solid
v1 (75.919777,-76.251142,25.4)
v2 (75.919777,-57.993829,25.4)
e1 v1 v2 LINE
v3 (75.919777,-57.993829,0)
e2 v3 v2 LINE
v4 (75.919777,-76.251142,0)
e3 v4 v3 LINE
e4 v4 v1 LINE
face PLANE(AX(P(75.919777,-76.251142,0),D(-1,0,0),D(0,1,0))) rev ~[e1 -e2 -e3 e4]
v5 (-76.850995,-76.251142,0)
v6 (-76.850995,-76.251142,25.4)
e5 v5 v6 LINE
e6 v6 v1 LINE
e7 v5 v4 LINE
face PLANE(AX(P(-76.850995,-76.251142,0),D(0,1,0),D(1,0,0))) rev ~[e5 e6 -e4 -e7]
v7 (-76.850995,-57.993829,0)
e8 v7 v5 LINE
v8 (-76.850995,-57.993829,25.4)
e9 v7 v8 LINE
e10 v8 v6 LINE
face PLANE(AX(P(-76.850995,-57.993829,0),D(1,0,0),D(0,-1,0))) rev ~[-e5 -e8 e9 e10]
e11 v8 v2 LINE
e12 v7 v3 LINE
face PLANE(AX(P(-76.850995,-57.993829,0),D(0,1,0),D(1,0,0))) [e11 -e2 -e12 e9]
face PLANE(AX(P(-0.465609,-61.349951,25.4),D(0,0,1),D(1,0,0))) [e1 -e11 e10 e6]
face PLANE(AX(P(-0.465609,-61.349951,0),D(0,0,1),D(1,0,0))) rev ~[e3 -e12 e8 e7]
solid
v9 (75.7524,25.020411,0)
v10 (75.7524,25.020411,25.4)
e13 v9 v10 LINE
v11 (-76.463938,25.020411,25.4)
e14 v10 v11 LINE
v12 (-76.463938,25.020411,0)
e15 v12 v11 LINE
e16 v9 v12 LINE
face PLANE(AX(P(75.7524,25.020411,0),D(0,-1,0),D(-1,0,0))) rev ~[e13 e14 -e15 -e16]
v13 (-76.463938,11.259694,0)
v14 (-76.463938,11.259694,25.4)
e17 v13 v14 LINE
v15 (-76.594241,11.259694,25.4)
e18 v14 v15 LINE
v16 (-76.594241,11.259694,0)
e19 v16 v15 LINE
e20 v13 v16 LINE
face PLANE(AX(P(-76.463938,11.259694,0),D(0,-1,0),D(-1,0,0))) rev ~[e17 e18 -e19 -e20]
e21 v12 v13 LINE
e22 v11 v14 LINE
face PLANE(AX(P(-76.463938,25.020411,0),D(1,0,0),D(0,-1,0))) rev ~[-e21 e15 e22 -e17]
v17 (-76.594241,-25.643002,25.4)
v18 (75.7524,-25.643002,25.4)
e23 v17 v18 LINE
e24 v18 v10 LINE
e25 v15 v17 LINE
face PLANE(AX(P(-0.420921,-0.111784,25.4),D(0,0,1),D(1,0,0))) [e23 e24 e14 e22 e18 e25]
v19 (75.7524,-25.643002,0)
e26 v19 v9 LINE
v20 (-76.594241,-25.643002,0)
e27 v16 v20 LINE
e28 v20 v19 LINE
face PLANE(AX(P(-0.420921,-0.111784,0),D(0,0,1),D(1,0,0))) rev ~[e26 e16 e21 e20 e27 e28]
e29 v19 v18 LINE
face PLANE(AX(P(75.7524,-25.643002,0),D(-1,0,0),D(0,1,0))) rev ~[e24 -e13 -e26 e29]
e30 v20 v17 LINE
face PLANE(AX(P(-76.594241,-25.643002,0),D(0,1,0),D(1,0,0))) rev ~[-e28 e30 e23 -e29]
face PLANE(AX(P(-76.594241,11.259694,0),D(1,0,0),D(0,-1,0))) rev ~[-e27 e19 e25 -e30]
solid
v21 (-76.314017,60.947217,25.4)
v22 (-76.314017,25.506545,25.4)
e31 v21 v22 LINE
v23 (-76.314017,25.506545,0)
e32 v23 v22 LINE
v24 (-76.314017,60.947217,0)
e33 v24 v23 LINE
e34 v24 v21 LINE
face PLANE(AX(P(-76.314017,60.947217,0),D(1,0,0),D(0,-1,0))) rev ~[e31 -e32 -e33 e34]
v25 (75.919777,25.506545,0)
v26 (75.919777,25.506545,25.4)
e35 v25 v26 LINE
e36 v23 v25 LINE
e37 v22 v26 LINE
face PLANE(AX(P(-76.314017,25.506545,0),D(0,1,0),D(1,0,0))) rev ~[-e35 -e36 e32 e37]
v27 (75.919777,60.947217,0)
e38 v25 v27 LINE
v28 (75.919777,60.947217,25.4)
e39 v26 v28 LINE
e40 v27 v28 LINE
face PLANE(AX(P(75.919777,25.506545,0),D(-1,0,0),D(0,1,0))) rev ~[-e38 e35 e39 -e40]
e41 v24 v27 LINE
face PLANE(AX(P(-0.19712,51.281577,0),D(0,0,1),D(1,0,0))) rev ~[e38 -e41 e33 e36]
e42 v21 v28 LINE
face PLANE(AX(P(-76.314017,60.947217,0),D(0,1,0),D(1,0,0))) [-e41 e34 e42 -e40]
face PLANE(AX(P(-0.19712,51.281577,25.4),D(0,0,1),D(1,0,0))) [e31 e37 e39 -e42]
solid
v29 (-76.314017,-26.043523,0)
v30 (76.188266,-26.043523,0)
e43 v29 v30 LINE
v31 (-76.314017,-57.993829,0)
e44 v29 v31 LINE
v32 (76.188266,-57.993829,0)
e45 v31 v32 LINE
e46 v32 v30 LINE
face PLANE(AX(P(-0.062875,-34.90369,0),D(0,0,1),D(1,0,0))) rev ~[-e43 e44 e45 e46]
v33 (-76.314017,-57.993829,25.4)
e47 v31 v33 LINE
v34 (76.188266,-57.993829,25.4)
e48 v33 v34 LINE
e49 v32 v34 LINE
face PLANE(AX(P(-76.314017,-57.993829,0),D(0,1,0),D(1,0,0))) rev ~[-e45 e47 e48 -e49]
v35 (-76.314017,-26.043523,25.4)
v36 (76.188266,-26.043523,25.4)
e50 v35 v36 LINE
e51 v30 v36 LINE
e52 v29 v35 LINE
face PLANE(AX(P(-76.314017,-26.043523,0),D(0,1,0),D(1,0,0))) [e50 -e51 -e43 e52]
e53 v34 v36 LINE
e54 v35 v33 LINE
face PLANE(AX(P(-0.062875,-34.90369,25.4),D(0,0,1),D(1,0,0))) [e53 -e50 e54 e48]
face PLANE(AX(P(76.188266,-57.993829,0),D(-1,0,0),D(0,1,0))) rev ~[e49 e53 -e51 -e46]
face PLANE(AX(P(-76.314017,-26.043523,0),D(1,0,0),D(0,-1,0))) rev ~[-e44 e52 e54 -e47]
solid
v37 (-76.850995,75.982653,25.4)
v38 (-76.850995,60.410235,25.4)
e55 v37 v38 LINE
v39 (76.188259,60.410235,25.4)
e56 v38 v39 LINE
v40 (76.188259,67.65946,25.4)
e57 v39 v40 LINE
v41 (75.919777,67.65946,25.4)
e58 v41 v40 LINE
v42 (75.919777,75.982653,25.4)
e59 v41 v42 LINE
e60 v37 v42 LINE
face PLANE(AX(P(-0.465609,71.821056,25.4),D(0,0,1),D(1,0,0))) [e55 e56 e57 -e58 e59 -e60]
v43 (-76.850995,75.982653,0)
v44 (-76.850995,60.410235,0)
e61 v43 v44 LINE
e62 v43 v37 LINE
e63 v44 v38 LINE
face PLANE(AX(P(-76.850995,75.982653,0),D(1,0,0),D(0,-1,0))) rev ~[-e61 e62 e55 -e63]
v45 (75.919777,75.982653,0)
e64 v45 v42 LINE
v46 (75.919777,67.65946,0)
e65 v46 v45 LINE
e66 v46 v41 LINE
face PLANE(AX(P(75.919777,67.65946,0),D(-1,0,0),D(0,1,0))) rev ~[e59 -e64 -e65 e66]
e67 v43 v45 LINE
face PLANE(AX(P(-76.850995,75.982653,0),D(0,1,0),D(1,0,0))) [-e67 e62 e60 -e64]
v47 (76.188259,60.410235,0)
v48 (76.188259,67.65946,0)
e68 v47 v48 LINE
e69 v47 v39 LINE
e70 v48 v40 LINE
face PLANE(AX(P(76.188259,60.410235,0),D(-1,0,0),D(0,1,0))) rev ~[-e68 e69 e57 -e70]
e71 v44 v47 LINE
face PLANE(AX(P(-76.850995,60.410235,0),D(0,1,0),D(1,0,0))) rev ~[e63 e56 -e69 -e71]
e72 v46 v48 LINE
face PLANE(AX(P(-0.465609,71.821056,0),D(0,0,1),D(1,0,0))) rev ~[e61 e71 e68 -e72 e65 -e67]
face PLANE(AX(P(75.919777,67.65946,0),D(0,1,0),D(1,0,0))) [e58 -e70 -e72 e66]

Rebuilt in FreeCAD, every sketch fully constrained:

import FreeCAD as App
import Part
import Sketcher

V = App.Vector
Q = App.Units.Quantity

doc = App.newDocument("Part")
body = doc.addObject("PartDesign::Body", "Body")

# Sketch on XY plane
sketch1 = body.newObject("Sketcher::SketchObject", "Sketch")
sketch1.AttachmentSupport = (doc.getObject("XY_Plane"), [""])
sketch1.MapMode = "FlatFace"
sketch1.addGeometry([
    Part.LineSegment(V(-76.594241, 11.259694, 0), V(-76.594241, -25.643002, 0)),  # 0
    Part.LineSegment(V(-76.594241, -25.643002, 0), V(75.7524, -25.643002, 0)),  # 1
    Part.LineSegment(V(75.7524, -25.643002, 0), V(75.7524, 25.020411, 0)),  # 2
    Part.LineSegment(V(75.7524, 25.020411, 0), V(-76.463938, 25.020411, 0)),  # 3
    Part.LineSegment(V(-76.463938, 25.020411, 0), V(-76.463938, 11.259694, 0)),  # 4
    Part.LineSegment(V(-76.463938, 11.259694, 0), V(-76.594241, 11.259694, 0)),  # 5
], False)
sketch1.addConstraint([
    Sketcher.Constraint("Coincident", 0, 2, 1, 1),
    Sketcher.Constraint("Coincident", 1, 2, 2, 1),
    Sketcher.Constraint("Coincident", 2, 2, 3, 1),
    Sketcher.Constraint("Coincident", 3, 2, 4, 1),
    Sketcher.Constraint("Coincident", 4, 2, 5, 1),
    Sketcher.Constraint("Coincident", 5, 2, 0, 1),
    Sketcher.Constraint("Vertical", 0),
    Sketcher.Constraint("Horizontal", 1),
    Sketcher.Constraint("Vertical", 2),
    Sketcher.Constraint("Horizontal", 3),
    Sketcher.Constraint("Vertical", 4),
    Sketcher.Constraint("Horizontal", 5),
    Sketcher.Constraint("DistanceX", 1, 1, 1, 2, 152.346641),
    Sketcher.Constraint("DistanceX", -1, 1, 1, 2, 75.7524),
    Sketcher.Constraint("DistanceX", 3, 2, 3, 1, 152.216338),
    Sketcher.Constraint("DistanceY", 0, 2, 0, 1, 36.902696),
    Sketcher.Constraint("DistanceY", 2, 1, 2, 2, 50.663413),
    Sketcher.Constraint("DistanceY", -1, 1, 2, 2, 25.020411),
])
pad1 = body.newObject("PartDesign::Pad", "Pad")
pad1.Profile = sketch1
pad1.Length = Q("1 in")
body2 = doc.addObject("PartDesign::Body", "Body001")

# Sketch on XY plane
sketch2 = body2.newObject("Sketcher::SketchObject", "Sketch001")
sketch2.AttachmentSupport = (doc.getObject("XY_Plane001"), [""])
sketch2.MapMode = "FlatFace"
sketch2.addGeometry([
    Part.LineSegment(V(-76.314017, 60.947217, 0), V(-76.314017, 25.506545, 0)),
    Part.LineSegment(V(-76.314017, 25.506545, 0), V(75.919777, 25.506545, 0)),
    Part.LineSegment(V(75.919777, 25.506545, 0), V(75.919777, 60.947217, 0)),
    Part.LineSegment(V(75.919777, 60.947217, 0), V(-76.314017, 60.947217, 0)),
], False)
sketch2.addConstraint([
    Sketcher.Constraint("Coincident", 0, 2, 1, 1),
    Sketcher.Constraint("Coincident", 1, 2, 2, 1),
    Sketcher.Constraint("Coincident", 2, 2, 3, 1),
    Sketcher.Constraint("Coincident", 3, 2, 0, 1),
    Sketcher.Constraint("Vertical", 0),
    Sketcher.Constraint("Horizontal", 1),
    Sketcher.Constraint("Vertical", 2),
    Sketcher.Constraint("Horizontal", 3),
    Sketcher.Constraint("DistanceX", 1, 1, 1, 2, 152.233794),
    Sketcher.Constraint("DistanceY", 0, 2, 0, 1, 35.440672),
    Sketcher.Constraint("DistanceX", 0, 2, -1, 1, 76.314017),
    Sketcher.Constraint("DistanceY", -1, 1, 0, 2, 25.506545),
])
pad2 = body2.newObject("PartDesign::Pad", "Pad001")
pad2.Profile = sketch2
pad2.Length = Q("1 in")
body3 = doc.addObject("PartDesign::Body", "Body002")

# Sketch on XY plane
sketch3 = body3.newObject("Sketcher::SketchObject", "Sketch002")
sketch3.AttachmentSupport = (doc.getObject("XY_Plane002"), [""])
sketch3.MapMode = "FlatFace"
sketch3.addGeometry([
    Part.LineSegment(V(-76.314017, -26.043523, 0), V(-76.314017, -57.993829, 0)),
    Part.LineSegment(V(-76.314017, -57.993829, 0), V(76.188266, -57.993829, 0)),
    Part.LineSegment(V(76.188266, -57.993829, 0), V(76.188266, -26.043523, 0)),
    Part.LineSegment(V(76.188266, -26.043523, 0), V(-76.314017, -26.043523, 0)),
], False)
sketch3.addConstraint([
    Sketcher.Constraint("Coincident", 0, 2, 1, 1),
    Sketcher.Constraint("Coincident", 1, 2, 2, 1),
    Sketcher.Constraint("Coincident", 2, 2, 3, 1),
    Sketcher.Constraint("Coincident", 3, 2, 0, 1),
    Sketcher.Constraint("Vertical", 0),
    Sketcher.Constraint("Horizontal", 1),
    Sketcher.Constraint("Vertical", 2),
    Sketcher.Constraint("Horizontal", 3),
    Sketcher.Constraint("DistanceX", 1, 1, 1, 2, 152.502283),
    Sketcher.Constraint("DistanceY", 0, 2, 0, 1, 31.950306),
    Sketcher.Constraint("DistanceY", 0, 2, -1, 1, 57.993829),
    Sketcher.Constraint("DistanceX", 0, 2, -1, 1, 76.314017),
])
pad3 = body3.newObject("PartDesign::Pad", "Pad002")
pad3.Profile = sketch3
pad3.Length = Q("1 in")
body4 = doc.addObject("PartDesign::Body", "Body003")

# Sketch on XY plane
sketch4 = body4.newObject("Sketcher::SketchObject", "Sketch003")
sketch4.AttachmentSupport = (doc.getObject("XY_Plane003"), [""])
sketch4.MapMode = "FlatFace"
sketch4.addGeometry([
    Part.LineSegment(V(-76.850995, 75.982653, 0), V(-76.850995, 60.410235, 0)),  # 0
    Part.LineSegment(V(-76.850995, 60.410235, 0), V(76.188259, 60.410235, 0)),  # 1
    Part.LineSegment(V(76.188259, 60.410235, 0), V(76.188259, 67.65946, 0)),  # 2
    Part.LineSegment(V(76.188259, 67.65946, 0), V(75.919777, 67.65946, 0)),  # 3
    Part.LineSegment(V(75.919777, 67.65946, 0), V(75.919777, 75.982653, 0)),  # 4
    Part.LineSegment(V(75.919777, 75.982653, 0), V(-76.850995, 75.982653, 0)),  # 5
], False)
sketch4.addConstraint([
    Sketcher.Constraint("Coincident", 0, 2, 1, 1),
    Sketcher.Constraint("Coincident", 1, 2, 2, 1),
    Sketcher.Constraint("Coincident", 2, 2, 3, 1),
    Sketcher.Constraint("Coincident", 3, 2, 4, 1),
    Sketcher.Constraint("Coincident", 4, 2, 5, 1),
    Sketcher.Constraint("Coincident", 5, 2, 0, 1),
    Sketcher.Constraint("Vertical", 0),
    Sketcher.Constraint("Horizontal", 1),
    Sketcher.Constraint("Vertical", 2),
    Sketcher.Constraint("Horizontal", 3),
    Sketcher.Constraint("Vertical", 4),
    Sketcher.Constraint("Horizontal", 5),
    Sketcher.Constraint("DistanceX", 3, 2, 3, 1, 0.268482),
    Sketcher.Constraint("DistanceX", 1, 1, 1, 2, 153.039254),
    Sketcher.Constraint("DistanceY", 0, 2, 0, 1, 15.572418),
    Sketcher.Constraint("DistanceY", 2, 1, 2, 2, 7.249225),
    Sketcher.Constraint("DistanceX", -1, 1, 1, 2, 76.188259),
    Sketcher.Constraint("DistanceY", -1, 1, 2, 2, 67.65946),
])
pad4 = body4.newObject("PartDesign::Pad", "Pad003")
pad4.Profile = sketch4
pad4.Length = Q("1 in")
body5 = doc.addObject("PartDesign::Body", "Body004")

# Sketch on XY plane
sketch5 = body5.newObject("Sketcher::SketchObject", "Sketch004")
sketch5.AttachmentSupport = (doc.getObject("XY_Plane004"), [""])
sketch5.MapMode = "FlatFace"
sketch5.addGeometry([
    Part.LineSegment(V(-76.850995, -57.993829, 0), V(-76.850995, -76.251142, 0)),
    Part.LineSegment(V(-76.850995, -76.251142, 0), V(75.919777, -76.251142, 0)),
    Part.LineSegment(V(75.919777, -76.251142, 0), V(75.919777, -57.993829, 0)),
    Part.LineSegment(V(75.919777, -57.993829, 0), V(-76.850995, -57.993829, 0)),
], False)
sketch5.addConstraint([
    Sketcher.Constraint("Coincident", 0, 2, 1, 1),
    Sketcher.Constraint("Coincident", 1, 2, 2, 1),
    Sketcher.Constraint("Coincident", 2, 2, 3, 1),
    Sketcher.Constraint("Coincident", 3, 2, 0, 1),
    Sketcher.Constraint("Vertical", 0),
    Sketcher.Constraint("Horizontal", 1),
    Sketcher.Constraint("Vertical", 2),
    Sketcher.Constraint("Horizontal", 3),
    Sketcher.Constraint("DistanceX", 1, 1, 1, 2, 152.770773),
    Sketcher.Constraint("DistanceY", 0, 2, 0, 1, 18.257312),
    Sketcher.Constraint("DistanceY", 0, 2, -1, 1, 76.251142),
    Sketcher.Constraint("DistanceX", 0, 2, -1, 1, 76.850995),
])
pad5 = body5.newObject("PartDesign::Pad", "Pad004")
pad5.Profile = sketch5
pad5.Length = Q("1 in")

doc.recompute()
